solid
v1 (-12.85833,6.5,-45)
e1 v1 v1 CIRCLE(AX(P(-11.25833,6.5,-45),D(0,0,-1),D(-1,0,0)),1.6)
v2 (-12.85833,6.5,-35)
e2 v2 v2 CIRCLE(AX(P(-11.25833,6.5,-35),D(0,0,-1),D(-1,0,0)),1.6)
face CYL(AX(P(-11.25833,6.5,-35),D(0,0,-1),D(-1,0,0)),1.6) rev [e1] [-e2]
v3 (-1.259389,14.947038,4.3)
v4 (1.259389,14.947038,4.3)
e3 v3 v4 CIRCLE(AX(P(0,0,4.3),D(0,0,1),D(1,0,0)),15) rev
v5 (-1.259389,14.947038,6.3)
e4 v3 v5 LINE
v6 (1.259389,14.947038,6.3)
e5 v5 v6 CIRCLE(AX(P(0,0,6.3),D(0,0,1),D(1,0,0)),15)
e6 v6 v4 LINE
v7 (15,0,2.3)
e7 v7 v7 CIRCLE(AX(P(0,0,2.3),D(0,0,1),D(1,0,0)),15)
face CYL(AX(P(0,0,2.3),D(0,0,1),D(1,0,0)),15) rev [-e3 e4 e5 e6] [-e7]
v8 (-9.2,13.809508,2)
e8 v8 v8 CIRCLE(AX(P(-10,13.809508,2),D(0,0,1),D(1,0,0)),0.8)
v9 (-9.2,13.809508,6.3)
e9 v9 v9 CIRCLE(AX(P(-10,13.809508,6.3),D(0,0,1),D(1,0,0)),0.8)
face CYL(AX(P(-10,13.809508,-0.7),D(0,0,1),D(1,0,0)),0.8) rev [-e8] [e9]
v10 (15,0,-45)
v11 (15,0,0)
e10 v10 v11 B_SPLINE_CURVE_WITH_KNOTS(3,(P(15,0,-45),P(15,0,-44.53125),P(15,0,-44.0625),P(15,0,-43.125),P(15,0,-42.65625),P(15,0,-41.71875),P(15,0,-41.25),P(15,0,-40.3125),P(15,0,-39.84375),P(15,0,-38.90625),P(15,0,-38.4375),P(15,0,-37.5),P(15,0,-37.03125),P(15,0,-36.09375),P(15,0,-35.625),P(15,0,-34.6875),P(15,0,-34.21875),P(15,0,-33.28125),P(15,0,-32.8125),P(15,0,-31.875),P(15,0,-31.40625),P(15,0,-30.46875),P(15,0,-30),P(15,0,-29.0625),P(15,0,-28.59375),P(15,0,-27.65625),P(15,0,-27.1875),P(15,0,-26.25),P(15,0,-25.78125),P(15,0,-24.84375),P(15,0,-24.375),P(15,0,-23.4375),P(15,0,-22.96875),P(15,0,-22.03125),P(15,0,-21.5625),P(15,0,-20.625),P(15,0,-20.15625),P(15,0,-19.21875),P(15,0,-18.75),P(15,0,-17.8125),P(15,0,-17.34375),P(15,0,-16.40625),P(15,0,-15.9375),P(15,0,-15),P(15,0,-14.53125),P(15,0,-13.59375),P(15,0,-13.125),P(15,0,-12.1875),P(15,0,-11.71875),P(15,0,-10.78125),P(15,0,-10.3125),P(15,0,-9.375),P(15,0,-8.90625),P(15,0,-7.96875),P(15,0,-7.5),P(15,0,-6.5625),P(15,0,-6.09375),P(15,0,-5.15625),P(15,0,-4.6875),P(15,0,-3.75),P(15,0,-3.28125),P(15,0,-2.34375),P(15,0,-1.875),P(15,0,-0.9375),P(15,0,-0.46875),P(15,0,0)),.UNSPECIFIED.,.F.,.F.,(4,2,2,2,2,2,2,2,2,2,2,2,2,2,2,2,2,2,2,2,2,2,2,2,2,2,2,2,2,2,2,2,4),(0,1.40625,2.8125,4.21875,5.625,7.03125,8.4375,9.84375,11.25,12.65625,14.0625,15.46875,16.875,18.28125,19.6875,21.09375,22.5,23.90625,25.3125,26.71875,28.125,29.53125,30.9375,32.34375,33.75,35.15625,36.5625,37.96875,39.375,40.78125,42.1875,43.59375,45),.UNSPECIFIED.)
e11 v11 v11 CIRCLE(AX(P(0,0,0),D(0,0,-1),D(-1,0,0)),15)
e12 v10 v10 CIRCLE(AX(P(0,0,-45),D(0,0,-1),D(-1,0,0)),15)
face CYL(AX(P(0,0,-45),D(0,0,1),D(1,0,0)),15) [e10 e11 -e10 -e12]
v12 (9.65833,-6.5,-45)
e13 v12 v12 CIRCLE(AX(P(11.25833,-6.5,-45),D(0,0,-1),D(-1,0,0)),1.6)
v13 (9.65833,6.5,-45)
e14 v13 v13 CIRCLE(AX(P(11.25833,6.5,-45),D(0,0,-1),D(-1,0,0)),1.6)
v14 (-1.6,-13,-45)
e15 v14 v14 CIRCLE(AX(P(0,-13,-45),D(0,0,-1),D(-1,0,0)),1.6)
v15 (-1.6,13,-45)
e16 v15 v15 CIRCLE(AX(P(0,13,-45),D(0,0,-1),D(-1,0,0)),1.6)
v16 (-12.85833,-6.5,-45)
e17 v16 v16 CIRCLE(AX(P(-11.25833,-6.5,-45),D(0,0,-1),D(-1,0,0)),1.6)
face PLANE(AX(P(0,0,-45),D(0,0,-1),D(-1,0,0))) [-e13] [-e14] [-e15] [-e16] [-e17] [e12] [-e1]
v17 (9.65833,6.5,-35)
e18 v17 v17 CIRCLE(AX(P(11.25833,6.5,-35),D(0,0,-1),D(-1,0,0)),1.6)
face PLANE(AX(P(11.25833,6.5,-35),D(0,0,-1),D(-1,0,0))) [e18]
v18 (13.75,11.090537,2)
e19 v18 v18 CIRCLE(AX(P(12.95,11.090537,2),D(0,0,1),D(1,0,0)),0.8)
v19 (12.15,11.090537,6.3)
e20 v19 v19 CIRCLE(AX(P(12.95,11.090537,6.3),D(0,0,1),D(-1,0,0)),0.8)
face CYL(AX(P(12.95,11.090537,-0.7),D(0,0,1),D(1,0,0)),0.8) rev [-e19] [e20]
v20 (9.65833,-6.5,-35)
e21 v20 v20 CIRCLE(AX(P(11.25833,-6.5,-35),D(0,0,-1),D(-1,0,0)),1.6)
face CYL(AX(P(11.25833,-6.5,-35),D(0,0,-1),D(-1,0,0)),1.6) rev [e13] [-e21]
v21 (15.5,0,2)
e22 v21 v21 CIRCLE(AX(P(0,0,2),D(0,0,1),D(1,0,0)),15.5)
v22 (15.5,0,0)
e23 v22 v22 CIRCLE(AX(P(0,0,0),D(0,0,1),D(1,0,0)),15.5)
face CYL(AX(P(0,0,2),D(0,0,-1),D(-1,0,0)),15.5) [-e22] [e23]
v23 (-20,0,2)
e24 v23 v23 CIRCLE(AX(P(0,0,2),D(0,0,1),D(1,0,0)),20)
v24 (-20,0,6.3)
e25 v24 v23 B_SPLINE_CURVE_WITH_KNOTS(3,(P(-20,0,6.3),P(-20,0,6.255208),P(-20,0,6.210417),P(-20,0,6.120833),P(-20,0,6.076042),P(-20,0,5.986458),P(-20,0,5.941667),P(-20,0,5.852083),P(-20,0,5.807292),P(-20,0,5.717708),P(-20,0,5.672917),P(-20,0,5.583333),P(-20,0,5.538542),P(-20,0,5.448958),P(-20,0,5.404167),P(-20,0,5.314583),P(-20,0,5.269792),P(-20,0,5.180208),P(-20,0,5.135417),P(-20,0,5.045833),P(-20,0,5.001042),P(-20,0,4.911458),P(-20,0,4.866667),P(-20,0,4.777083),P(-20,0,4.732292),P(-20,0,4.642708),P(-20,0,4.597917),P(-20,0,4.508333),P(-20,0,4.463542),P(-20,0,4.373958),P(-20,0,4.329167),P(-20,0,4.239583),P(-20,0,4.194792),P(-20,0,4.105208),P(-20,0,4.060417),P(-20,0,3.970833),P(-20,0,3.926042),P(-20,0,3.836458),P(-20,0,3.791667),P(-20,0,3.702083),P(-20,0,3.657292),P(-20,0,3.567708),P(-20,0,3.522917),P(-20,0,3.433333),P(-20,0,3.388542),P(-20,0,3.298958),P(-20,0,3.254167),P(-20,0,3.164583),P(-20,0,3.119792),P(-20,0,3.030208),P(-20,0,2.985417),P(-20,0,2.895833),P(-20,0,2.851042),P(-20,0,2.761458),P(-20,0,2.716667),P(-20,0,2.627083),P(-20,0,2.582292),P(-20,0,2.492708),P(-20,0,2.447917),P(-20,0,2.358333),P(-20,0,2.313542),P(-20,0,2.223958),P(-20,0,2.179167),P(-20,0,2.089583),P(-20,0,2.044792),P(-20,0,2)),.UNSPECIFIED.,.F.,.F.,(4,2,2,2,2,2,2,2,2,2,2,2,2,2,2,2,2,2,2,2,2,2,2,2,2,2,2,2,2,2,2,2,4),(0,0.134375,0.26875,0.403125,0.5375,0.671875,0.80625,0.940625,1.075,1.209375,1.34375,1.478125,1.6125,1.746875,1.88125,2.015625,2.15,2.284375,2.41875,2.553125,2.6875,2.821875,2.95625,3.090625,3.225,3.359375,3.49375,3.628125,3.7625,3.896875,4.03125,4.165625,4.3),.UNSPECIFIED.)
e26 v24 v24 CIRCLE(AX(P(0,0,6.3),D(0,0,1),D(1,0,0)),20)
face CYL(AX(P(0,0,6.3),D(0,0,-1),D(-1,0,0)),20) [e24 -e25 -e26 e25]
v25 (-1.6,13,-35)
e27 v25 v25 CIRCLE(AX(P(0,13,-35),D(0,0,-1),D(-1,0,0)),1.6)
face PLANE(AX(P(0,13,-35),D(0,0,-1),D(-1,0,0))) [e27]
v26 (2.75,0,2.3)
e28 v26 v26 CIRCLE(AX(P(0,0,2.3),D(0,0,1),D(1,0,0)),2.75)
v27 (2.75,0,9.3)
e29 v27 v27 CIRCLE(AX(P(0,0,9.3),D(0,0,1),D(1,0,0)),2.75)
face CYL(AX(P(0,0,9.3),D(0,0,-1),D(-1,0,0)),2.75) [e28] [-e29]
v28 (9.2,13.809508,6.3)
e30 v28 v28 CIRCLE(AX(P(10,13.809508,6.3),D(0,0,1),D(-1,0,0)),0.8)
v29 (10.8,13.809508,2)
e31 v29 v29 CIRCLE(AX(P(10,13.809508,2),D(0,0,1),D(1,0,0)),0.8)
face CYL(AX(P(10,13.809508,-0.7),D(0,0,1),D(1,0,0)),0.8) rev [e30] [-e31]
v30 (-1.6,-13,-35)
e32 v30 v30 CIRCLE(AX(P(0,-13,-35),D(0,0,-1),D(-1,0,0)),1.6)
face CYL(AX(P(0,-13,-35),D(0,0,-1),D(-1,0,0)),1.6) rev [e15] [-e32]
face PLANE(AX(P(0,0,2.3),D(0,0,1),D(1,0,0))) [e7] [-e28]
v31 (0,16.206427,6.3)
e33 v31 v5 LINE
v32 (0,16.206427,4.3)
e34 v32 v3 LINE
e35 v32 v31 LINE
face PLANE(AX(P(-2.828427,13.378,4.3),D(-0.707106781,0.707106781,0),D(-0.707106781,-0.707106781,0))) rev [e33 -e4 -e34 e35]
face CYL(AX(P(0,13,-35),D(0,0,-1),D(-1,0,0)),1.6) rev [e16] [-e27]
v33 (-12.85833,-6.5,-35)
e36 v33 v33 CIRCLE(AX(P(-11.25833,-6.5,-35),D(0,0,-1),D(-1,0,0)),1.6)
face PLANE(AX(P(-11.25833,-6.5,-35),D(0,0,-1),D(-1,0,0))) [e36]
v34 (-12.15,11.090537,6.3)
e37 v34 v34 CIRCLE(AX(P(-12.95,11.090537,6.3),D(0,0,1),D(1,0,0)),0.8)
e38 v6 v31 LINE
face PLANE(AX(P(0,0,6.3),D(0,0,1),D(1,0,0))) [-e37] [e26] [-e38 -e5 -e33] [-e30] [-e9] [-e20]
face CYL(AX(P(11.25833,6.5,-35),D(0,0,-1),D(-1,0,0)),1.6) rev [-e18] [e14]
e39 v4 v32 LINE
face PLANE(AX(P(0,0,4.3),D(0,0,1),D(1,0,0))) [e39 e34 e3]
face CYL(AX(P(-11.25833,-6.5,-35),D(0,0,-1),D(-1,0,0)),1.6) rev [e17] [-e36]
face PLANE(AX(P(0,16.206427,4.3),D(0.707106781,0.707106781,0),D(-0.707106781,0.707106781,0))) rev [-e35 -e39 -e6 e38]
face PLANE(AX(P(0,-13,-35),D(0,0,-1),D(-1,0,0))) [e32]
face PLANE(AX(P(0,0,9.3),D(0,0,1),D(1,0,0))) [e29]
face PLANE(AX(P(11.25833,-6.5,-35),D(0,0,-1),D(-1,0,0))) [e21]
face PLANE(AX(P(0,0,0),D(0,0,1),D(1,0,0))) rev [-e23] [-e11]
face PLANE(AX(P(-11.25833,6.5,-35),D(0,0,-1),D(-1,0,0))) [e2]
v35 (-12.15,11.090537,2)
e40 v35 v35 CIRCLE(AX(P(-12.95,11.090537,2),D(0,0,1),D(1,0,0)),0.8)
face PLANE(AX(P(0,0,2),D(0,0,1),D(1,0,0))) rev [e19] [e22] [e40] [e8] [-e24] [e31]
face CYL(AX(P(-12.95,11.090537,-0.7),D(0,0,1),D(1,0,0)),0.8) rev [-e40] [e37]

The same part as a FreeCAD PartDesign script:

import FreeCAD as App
import Part
import Sketcher
from FreeCAD import Vector

doc = App.newDocument("Part")
body = doc.addObject("PartDesign::Body", "Body")

# Sketch on XY plane
sketch1 = doc.addObject("Sketcher::SketchObject", "Sketch")
body.addObject(sketch1)
sketch1.AttachmentSupport = (doc.XY_Plane, [""])
sketch1.MapMode = "FlatFace"
sketch1.addGeometry(Part.Circle(Vector(0, 0, 0), Vector(0, 0, 1), 16), False)
sketch1.addConstraint([
    Sketcher.Constraint("Coincident", 0, 3, -1, 1),
    Sketcher.Constraint("Diameter", 0, 31.0),
])
pad1 = doc.addObject("PartDesign::Pad", "Pad")
body.addObject(pad1)
pad1.Profile = sketch1
pad1.Length = 2

# Sketch on XY plane
sketch2 = doc.addObject("Sketcher::SketchObject", "Sketch001")
body.addObject(sketch2)
sketch2.AttachmentSupport = (doc.XY_Plane, [""])
sketch2.MapMode = "FlatFace"
sketch2.addGeometry(Part.Circle(Vector(0, 0, 0), Vector(0, 0, 1), 15), False)
sketch2.addConstraint([
    Sketcher.Constraint("Coincident", 0, 3, -1, 1),
    Sketcher.Constraint("Diameter", 0, 30.0),
])
pad2 = doc.addObject("PartDesign::Pad", "Pad001")
body.addObject(pad2)
pad2.Profile = sketch2
pad2.Length = 45
pad2.Reversed = True

# Sketch on XY plane
sketch3 = doc.addObject("Sketcher::SketchObject", "Sketch002")
body.addObject(sketch3)
sketch3.AttachmentSupport = (doc.XY_Plane, [""])
sketch3.MapMode = "FlatFace"
sketch3.AttachmentOffset = App.Placement(Vector(0, 0, 2), App.Rotation())
sketch3.addGeometry(Part.Circle(Vector(0, 0, 0), Vector(0, 0, 1), 20), False)
sketch3.addConstraint([
    Sketcher.Constraint("Coincident", 0, 3, -1, 1),
    Sketcher.Constraint("Diameter", 0, 40.0),
])
pad3 = doc.addObject("PartDesign::Pad", "Pad002")
body.addObject(pad3)
pad3.Profile = sketch3
pad3.Length = 4.3

# Sketch on XY plane
sketch4 = doc.addObject("Sketcher::SketchObject", "Sketch003")
body.addObject(sketch4)
sketch4.AttachmentSupport = (doc.XY_Plane, [""])
sketch4.MapMode = "FlatFace"
sketch4.AttachmentOffset = App.Placement(Vector(0, 0, 6.3), App.Rotation())
sketch4.addGeometry(Part.Circle(Vector(0, 0, 0), Vector(0, 0, 1), 15), False)
sketch4.addConstraint([
    Sketcher.Constraint("Coincident", 0, 3, -1, 1),
    Sketcher.Constraint("Diameter", 0, 30.0),
])
pocket1 = doc.addObject("PartDesign::Pocket", "Pocket")
body.addObject(pocket1)
pocket1.Profile = sketch4
pocket1.Length = 4

# Sketch on XY plane
sketch5 = doc.addObject("Sketcher::SketchObject", "Sketch004")
body.addObject(sketch5)
sketch5.AttachmentSupport = (doc.XY_Plane, [""])
sketch5.MapMode = "FlatFace"
sketch5.AttachmentOffset = App.Placement(Vector(0, 0, 2.3), App.Rotation())
sketch5.addGeometry(Part.Circle(Vector(0, 0, 0), Vector(0, 0, 1), 2.8), False)
sketch5.addConstraint([
    Sketcher.Constraint("Coincident", 0, 3, -1, 1),
    Sketcher.Constraint("Diameter", 0, 5.5),
])
pad4 = doc.addObject("PartDesign::Pad", "Pad003")
body.addObject(pad4)
pad4.Profile = sketch5
pad4.Length = 7

# Sketch on XY plane
sketch6 = doc.addObject("Sketcher::SketchObject", "Sketch005")
body.addObject(sketch6)
sketch6.AttachmentSupport = (doc.XY_Plane, [""])
sketch6.MapMode = "FlatFace"
sketch6.AttachmentOffset = App.Placement(Vector(0, 0, 6.3), App.Rotation())
sketch6.addGeometry([
    Part.Circle(Vector(-10, 13.8, 0), Vector(0, 0, 1), 0.8),
    Part.Circle(Vector(10, 13.8, 0), Vector(0, 0, 1), 0.8),
    Part.Circle(Vector(-12.9, 11.1, 0), Vector(0, 0, 1), 0.8),
    Part.Circle(Vector(12.9, 11.1, 0), Vector(0, 0, 1), 0.8),
], False)
sketch6.addConstraint([
    Sketcher.Constraint("Equal", 0, 1),
    Sketcher.Constraint("Equal", 1, 2),
    Sketcher.Constraint("Equal", 2, 3),
    Sketcher.Constraint("Symmetric", 0, 3, 1, 3, -2),
    Sketcher.Constraint("Symmetric", 2, 3, 3, 3, -2),
    Sketcher.Constraint("Diameter", 0, 1.6),
    Sketcher.Constraint("DistanceX", 0, 3, -1, 1, 10.0),
    Sketcher.Constraint("DistanceX", 2, 3, 3, 3, 25.9),
    Sketcher.Constraint("DistanceY", 2, 3, 0, 3, 2.718971),
    Sketcher.Constraint("DistanceY", -1, 1, 0, 3, 13.809508),
])
pocket2 = doc.addObject("PartDesign::Pocket", "Pocket001")
body.addObject(pocket2)
pocket2.Profile = sketch6
pocket2.Length = 7

# Sketch on XY plane
sketch7 = doc.addObject("Sketcher::SketchObject", "Sketch006")
body.addObject(sketch7)
sketch7.AttachmentSupport = (doc.XY_Plane, [""])
sketch7.MapMode = "FlatFace"
sketch7.AttachmentOffset = App.Placement(Vector(0, 0, 6.3), App.Rotation())
sketch7.addGeometry([
    Part.LineSegment(Vector(0, 16.2, 0), Vector(-2.8, 13.4, 0)),
    Part.LineSegment(Vector(-2.8, 13.4, 0), Vector(0, 10.5, 0)),
    Part.LineSegment(Vector(0, 10.5, 0), Vector(2.8, 13.4, 0)),
    Part.LineSegment(Vector(2.8, 13.4, 0), Vector(0, 16.2, 0)),
], False)
sketch7.addConstraint([
    Sketcher.Constraint("Coincident", 0, 2, 1, 1),
    Sketcher.Constraint("Coincident", 1, 2, 2, 1),
    Sketcher.Constraint("Coincident", 2, 2, 3, 1),
    Sketcher.Constraint("Coincident", 3, 2, 0, 1),
    Sketcher.Constraint("Symmetric", 0, 2, 2, 2, -2),
    Sketcher.Constraint("PointOnObject", 1, 2, -2),
    Sketcher.Constraint("PointOnObject", 3, 2, -2),
    Sketcher.Constraint("Perpendicular", 0, 1),
    Sketcher.Constraint("Perpendicular", 1, 2),
    Sketcher.Constraint("Distance", 0, 4.0),
    Sketcher.Constraint("DistanceY", -1, 1, 0, 2, 13.378),
])
pocket3 = doc.addObject("PartDesign::Pocket", "Pocket002")
body.addObject(pocket3)
pocket3.Profile = sketch7
pocket3.Length = 2

# Sketch on XY plane
sketch8 = doc.addObject("Sketcher::SketchObject", "Sketch007")
body.addObject(sketch8)
sketch8.AttachmentSupport = (doc.XY_Plane, [""])
sketch8.MapMode = "FlatFace"
sketch8.AttachmentOffset = App.Placement(Vector(0, 0, -45), App.Rotation())
sketch8.addGeometry([
    Part.Circle(Vector(-11.3, 6.5, 0), Vector(0, 0, 1), 1.6),  # 0
    Part.Circle(Vector(0, 13, 0), Vector(0, 0, 1), 1.6),  # 1
    Part.Circle(Vector(-11.3, -6.5, 0), Vector(0, 0, 1), 1.6),  # 2
    Part.Circle(Vector(0, -13, 0), Vector(0, 0, 1), 1.6),  # 3
    Part.Circle(Vector(11.3, -6.5, 0), Vector(0, 0, 1), 1.6),  # 4
    Part.Circle(Vector(11.3, 6.5, 0), Vector(0, 0, 1), 1.6),  # 5
], False)
sketch8.addConstraint([
    Sketcher.Constraint("Equal", 0, 1),
    Sketcher.Constraint("Equal", 1, 2),
    Sketcher.Constraint("Equal", 2, 3),
    Sketcher.Constraint("Equal", 3, 4),
    Sketcher.Constraint("Equal", 4, 5),
    Sketcher.Constraint("Symmetric", 1, 3, 3, 3, -1, 1),
    Sketcher.Constraint("Symmetric", 0, 3, 4, 3, -1, 1),
    Sketcher.Constraint("Symmetric", 2, 3, 5, 3, -1, 1),
    Sketcher.Constraint("Symmetric", 2, 3, 4, 3, -2),
    Sketcher.Constraint("PointOnObject", 1, 3, -2),
    Sketcher.Constraint("Diameter", 0, 3.2),
    Sketcher.Constraint("DistanceY", -1, 1, 1, 3, 13.0),
    Sketcher.Constraint("DistanceY", 2, 3, 0, 3, 13.0),
    Sketcher.Constraint("DistanceX", 0, 3, -1, 1, 11.25833),
])
pocket4 = doc.addObject("PartDesign::Pocket", "Pocket003")
body.addObject(pocket4)
pocket4.Profile = sketch8
pocket4.Length = 10
pocket4.Reversed = True

doc.recompute()
